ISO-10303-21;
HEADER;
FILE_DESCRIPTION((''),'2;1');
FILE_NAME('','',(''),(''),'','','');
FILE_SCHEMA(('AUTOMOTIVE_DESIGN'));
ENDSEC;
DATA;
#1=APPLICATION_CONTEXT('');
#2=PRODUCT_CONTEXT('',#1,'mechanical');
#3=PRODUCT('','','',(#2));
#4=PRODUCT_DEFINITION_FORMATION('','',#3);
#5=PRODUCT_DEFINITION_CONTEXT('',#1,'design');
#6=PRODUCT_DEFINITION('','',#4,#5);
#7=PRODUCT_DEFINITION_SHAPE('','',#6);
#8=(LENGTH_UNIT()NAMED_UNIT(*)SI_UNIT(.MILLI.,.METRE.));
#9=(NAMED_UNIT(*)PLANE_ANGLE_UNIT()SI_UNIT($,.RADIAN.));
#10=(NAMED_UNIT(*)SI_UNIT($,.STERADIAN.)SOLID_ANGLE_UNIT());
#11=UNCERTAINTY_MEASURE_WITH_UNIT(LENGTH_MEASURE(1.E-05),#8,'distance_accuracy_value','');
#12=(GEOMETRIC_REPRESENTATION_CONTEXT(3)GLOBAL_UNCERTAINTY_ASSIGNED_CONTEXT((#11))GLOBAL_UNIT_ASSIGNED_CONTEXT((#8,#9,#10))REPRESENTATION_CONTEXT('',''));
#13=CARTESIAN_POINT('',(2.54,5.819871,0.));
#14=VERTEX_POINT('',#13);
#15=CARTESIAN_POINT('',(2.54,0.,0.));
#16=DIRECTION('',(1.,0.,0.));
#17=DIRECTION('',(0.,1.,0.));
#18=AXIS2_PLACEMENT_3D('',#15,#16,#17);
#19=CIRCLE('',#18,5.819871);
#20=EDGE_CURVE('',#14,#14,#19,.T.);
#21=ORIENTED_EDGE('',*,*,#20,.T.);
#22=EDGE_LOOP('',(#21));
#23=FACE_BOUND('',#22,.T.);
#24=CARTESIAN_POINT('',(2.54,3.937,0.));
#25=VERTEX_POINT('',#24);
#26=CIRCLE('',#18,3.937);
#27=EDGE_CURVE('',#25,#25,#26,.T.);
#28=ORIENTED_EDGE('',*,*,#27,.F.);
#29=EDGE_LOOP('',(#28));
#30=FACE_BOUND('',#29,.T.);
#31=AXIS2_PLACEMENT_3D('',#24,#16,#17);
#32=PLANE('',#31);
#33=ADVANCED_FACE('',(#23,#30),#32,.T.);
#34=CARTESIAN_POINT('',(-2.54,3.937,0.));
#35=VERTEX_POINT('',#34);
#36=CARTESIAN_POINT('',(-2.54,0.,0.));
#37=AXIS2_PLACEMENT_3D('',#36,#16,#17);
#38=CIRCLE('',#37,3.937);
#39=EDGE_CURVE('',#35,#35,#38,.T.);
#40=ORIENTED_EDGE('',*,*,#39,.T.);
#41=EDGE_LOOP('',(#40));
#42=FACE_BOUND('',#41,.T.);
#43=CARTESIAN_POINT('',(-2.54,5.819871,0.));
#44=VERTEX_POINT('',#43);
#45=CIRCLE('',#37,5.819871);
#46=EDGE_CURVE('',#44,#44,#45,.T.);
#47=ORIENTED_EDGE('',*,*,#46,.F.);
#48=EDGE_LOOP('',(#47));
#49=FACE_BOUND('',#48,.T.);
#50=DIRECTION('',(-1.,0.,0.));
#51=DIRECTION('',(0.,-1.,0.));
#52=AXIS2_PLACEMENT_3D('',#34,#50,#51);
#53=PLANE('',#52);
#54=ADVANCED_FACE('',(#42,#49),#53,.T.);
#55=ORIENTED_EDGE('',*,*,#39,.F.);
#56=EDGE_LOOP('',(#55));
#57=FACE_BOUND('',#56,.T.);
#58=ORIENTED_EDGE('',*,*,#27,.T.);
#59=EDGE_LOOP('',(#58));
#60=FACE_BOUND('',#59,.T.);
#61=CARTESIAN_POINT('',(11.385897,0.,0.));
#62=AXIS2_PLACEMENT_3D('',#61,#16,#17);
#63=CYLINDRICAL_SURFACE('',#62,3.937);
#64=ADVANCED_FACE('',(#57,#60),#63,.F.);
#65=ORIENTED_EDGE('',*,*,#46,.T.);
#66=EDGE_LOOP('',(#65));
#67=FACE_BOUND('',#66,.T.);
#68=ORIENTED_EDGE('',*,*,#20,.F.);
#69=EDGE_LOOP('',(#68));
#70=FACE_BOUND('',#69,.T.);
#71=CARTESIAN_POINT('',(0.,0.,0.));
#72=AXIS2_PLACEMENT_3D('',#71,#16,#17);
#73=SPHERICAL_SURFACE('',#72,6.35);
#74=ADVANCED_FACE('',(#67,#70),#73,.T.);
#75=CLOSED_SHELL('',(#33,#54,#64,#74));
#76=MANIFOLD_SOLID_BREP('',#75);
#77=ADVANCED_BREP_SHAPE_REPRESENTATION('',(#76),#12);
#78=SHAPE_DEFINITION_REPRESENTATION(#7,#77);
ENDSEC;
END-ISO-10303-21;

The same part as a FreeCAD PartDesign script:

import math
import FreeCAD as App
import Part
import Sketcher
from FreeCAD import Vector
Q = App.Units.Quantity

doc = App.newDocument("Part")
params = doc.addObject("Spreadsheet::Sheet", "Params")
for row, (alias, value) in enumerate([
    ("sketch1_radius", "0.25 in"),
    ("sketch1_width", "0.2 in"),
    ("revolution_angle", "360 deg"),
], start=1):
    params.set(f"A{row}", alias)
    params.set(f"B{row}", "=" + value)
    params.setAlias(f"B{row}", alias)

body = doc.addObject("PartDesign::Body", "Body")

# Sketch on XY plane
sketch1 = body.newObject("Sketcher::SketchObject", "Sketch")
sketch1.AttachmentSupport = (doc.getObject("XY_Plane"), [""])
sketch1.MapMode = "FlatFace"
sketch1.addGeometry([
    Part.LineSegment(Vector(-2.5, 5.8, 0), Vector(-2.5, 3.9, 0)),
    Part.LineSegment(Vector(-2.5, 3.9, 0), Vector(2.5, 3.9, 0)),
    Part.LineSegment(Vector(2.5, 3.9, 0), Vector(2.5, 5.8, 0)),
    Part.ArcOfCircle(Part.Circle(Vector(0, 0, 0), Vector(0, 0, 1), 6.4), math.radians(66), math.radians(114)),
], False)
sketch1.addConstraint([
    Sketcher.Constraint("Coincident", 0, 2, 1, 1),
    Sketcher.Constraint("Coincident", 1, 2, 2, 1),
    Sketcher.Constraint("Coincident", 2, 2, 3, 1),
    Sketcher.Constraint("Coincident", 3, 2, 0, 1),
    Sketcher.Constraint("Vertical", 0),
    Sketcher.Constraint("Horizontal", 1),
    Sketcher.Constraint("Vertical", 2),
    Sketcher.Constraint("Coincident", 3, 3, -1, 1),
    Sketcher.Constraint("Horizontal", 2, 2, 3, 2),
    Sketcher.Constraint("Radius", 3, Q("0.25 in")),
    Sketcher.Constraint("DistanceX", 1, 1, 1, 2, Q("0.2 in")),
    Sketcher.Constraint("DistanceY", -1, 1, 0, 2, Q("0.155 in")),
])
sketch1.setExpression("Constraints[9]", "Params.sketch1_radius")
sketch1.setExpression("Constraints[10]", "Params.sketch1_width")
revolution = body.newObject("PartDesign::Revolution", "Revolution")
revolution.Profile = sketch1
revolution.ReferenceAxis = (sketch1, ["H_Axis"])
revolution.setExpression("Angle", "Params.revolution_angle")

doc.recompute()
